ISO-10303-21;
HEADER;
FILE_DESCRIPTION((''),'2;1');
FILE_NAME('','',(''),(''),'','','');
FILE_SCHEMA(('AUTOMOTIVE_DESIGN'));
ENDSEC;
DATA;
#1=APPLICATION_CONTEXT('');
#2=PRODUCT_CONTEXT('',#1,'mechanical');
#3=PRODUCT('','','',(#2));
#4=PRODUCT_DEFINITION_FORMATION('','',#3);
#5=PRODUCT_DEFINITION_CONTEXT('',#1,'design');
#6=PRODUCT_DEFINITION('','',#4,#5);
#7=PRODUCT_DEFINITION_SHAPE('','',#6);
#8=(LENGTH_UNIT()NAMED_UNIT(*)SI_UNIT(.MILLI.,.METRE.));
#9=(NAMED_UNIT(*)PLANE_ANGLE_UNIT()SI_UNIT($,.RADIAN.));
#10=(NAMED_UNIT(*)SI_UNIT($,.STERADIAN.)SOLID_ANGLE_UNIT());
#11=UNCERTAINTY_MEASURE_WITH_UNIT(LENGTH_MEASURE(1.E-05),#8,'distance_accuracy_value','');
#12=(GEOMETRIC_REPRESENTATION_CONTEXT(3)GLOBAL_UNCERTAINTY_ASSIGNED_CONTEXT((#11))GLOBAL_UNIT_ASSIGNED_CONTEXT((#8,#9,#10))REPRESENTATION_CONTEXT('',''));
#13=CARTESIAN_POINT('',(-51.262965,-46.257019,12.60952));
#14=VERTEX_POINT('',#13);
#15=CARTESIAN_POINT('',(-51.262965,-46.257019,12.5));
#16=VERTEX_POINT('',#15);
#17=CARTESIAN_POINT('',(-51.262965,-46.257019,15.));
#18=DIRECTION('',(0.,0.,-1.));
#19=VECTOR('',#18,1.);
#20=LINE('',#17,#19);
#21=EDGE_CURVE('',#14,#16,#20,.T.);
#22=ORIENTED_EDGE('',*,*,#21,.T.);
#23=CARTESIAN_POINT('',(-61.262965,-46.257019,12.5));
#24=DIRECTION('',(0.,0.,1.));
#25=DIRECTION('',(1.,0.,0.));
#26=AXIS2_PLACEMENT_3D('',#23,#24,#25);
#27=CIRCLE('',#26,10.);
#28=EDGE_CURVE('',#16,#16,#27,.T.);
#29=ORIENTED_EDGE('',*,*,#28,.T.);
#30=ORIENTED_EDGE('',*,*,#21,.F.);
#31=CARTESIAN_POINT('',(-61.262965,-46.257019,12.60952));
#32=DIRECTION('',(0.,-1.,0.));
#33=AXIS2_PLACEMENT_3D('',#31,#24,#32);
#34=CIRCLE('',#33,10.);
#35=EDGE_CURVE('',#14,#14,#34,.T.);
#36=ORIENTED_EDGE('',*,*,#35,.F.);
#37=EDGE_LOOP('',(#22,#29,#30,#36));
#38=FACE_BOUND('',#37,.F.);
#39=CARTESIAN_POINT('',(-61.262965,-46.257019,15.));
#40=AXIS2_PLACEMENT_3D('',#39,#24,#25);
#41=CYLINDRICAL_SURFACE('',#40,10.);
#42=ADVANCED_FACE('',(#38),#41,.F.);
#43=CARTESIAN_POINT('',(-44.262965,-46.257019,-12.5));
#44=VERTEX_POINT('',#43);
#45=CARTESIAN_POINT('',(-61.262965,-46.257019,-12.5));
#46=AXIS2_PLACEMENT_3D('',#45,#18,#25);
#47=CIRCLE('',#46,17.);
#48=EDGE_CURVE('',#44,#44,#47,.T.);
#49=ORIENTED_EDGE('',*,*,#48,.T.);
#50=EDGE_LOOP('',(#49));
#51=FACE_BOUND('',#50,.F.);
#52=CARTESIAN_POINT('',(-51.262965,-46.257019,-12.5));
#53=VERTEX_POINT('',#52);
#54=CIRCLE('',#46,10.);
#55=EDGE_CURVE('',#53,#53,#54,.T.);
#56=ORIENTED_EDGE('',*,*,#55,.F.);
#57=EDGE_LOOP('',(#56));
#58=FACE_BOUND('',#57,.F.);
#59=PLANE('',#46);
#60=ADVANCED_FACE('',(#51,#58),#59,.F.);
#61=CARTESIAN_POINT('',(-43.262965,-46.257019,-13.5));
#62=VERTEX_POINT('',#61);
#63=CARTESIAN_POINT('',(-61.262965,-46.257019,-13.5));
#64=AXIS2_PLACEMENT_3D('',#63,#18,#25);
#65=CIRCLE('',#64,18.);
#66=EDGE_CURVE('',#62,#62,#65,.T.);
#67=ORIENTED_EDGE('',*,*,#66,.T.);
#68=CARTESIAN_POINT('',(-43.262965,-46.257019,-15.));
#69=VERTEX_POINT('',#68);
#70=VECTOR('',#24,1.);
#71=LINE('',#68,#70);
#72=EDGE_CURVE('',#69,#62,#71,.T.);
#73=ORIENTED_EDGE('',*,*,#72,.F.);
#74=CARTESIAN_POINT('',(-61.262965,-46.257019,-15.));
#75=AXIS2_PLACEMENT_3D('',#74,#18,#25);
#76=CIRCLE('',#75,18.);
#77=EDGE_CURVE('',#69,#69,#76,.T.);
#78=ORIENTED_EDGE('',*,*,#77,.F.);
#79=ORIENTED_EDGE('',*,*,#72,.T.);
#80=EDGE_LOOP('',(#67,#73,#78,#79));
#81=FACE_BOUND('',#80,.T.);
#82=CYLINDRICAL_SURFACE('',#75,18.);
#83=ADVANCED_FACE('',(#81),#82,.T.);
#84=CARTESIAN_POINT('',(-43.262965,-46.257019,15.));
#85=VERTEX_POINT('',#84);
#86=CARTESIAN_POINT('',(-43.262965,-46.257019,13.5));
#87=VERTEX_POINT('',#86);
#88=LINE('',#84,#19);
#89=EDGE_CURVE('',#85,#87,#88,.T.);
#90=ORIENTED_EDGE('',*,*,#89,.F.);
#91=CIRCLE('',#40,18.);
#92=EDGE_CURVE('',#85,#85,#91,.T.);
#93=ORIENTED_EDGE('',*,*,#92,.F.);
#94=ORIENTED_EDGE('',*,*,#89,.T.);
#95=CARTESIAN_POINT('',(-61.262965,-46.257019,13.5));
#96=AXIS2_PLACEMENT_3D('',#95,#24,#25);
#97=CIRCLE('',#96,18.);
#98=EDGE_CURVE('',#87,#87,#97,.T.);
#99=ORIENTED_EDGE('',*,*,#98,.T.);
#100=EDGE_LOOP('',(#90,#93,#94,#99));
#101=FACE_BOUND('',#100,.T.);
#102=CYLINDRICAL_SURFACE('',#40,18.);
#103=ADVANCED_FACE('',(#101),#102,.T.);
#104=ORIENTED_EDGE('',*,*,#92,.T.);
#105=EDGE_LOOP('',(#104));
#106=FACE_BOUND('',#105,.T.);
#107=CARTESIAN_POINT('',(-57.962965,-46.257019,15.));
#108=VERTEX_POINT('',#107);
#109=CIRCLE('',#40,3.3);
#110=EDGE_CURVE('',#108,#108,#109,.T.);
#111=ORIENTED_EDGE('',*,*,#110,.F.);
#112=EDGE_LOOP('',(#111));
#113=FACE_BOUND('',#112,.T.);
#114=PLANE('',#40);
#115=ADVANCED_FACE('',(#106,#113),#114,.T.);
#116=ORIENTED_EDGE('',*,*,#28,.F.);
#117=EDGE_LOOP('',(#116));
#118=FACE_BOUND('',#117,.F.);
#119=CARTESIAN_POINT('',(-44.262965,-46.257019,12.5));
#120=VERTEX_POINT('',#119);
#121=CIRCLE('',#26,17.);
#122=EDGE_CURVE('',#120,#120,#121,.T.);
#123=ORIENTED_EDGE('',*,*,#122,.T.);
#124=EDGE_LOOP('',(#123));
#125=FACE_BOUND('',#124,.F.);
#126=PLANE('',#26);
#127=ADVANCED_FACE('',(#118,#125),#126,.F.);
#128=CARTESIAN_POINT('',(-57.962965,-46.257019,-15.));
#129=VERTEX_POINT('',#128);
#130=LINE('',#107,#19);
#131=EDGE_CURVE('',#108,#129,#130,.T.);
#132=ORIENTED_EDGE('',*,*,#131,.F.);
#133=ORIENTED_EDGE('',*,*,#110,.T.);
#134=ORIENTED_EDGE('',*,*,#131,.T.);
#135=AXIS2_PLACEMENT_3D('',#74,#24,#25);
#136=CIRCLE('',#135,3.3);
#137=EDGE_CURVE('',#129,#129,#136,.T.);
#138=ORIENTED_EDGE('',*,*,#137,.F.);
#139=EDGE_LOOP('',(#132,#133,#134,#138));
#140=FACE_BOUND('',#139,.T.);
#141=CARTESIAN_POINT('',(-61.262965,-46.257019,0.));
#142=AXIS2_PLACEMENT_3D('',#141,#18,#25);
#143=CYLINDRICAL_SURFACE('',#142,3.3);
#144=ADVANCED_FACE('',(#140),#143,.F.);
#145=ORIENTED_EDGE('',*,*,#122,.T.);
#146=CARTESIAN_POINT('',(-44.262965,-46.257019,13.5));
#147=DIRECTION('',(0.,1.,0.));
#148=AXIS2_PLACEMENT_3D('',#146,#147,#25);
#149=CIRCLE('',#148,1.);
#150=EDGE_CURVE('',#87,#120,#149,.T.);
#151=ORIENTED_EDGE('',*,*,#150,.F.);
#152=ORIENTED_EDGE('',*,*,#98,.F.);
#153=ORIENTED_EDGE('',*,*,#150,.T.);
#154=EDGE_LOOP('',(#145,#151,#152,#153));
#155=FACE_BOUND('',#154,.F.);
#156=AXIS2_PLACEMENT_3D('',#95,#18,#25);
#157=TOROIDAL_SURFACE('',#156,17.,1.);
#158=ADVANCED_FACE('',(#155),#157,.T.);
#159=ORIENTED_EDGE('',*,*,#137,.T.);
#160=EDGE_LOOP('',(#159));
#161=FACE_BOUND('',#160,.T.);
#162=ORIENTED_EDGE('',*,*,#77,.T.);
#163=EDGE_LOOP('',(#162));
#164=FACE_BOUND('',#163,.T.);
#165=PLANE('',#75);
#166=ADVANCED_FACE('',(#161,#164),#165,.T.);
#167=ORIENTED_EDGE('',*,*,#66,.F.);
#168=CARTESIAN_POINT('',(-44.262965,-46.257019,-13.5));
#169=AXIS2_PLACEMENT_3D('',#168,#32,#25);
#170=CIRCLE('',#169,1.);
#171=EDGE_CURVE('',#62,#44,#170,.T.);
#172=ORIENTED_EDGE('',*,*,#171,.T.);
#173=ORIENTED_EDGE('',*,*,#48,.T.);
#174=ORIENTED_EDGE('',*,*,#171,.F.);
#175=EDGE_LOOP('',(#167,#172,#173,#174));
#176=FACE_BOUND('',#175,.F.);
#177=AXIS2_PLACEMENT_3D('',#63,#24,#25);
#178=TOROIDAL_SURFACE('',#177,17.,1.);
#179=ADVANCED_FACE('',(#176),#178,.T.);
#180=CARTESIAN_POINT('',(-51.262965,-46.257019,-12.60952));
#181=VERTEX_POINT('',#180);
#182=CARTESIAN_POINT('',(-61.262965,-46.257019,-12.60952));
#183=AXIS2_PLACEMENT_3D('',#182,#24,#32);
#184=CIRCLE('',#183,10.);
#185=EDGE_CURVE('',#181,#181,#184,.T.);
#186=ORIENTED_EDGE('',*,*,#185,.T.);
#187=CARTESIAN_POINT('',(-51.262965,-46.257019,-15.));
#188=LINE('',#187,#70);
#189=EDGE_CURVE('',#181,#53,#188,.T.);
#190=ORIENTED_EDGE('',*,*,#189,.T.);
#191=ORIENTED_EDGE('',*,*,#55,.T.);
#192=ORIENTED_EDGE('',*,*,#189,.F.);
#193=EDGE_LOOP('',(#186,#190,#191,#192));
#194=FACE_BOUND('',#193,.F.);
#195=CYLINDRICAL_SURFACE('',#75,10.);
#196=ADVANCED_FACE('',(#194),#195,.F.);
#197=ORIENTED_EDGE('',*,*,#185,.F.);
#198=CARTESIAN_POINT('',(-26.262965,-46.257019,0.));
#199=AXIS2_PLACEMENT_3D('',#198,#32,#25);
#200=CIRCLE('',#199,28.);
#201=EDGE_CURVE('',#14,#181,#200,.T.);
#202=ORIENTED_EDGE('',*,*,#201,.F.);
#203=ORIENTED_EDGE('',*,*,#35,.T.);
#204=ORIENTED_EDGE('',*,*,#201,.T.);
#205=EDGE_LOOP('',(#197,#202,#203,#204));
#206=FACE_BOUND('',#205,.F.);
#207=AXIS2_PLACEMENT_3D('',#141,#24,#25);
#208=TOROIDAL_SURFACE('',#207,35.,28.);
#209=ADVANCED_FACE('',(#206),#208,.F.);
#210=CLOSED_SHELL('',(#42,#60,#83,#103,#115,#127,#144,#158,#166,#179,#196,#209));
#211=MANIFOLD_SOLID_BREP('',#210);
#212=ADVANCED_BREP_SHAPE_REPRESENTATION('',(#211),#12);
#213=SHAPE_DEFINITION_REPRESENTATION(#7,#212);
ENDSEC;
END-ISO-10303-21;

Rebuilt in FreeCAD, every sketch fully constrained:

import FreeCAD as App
import Part
import Sketcher
Q = App.Units.Quantity


def edges_at(feature, points):
    """Names of the edges that pass closest to the given points."""
    edges = feature.Shape.Edges
    near = lambda p: min(range(len(edges)), key=lambda i: edges[i].distToShape(Part.Vertex(*p))[0])
    return sorted({f"Edge{near(p) + 1}" for p in points})

doc = App.newDocument("Part")
body = doc.addObject("PartDesign::Body", "Body")

sketch1 = body.newObject("Sketcher::SketchObject", "Sketch")
sketch1.AttachmentSupport = (doc.getObject("XY_Plane"), [""])
sketch1.MapMode = "FlatFace"
sketch1.addGeometry([
    Part.Circle(App.Vector(-61.3, -46.3, 0), App.Vector(0, 0, 1), 10),
    Part.Circle(App.Vector(-61.3, -46.3, 0), App.Vector(0, 0, 1), 3.3),
], False)
sketch1.addConstraint([
    Sketcher.Constraint("Coincident", 1, 3, 0, 3),
    Sketcher.Constraint("Diameter", 0, Q("20 mm")),
    Sketcher.Constraint("Diameter", 1, Q("6.6 mm")),
    Sketcher.Constraint("DistanceY", 0, 3, -1, 1, Q("46.257019 mm")),
    Sketcher.Constraint("DistanceX", 0, 3, -1, 1, Q("61.262965 mm")),
])
pad1 = body.newObject("PartDesign::Pad", "Pad")
pad1.Profile = sketch1
pad1.Length = 15

sketch2 = body.newObject("Sketcher::SketchObject", "Sketch001")
sketch2.AttachmentSupport = (doc.getObject("XY_Plane"), [""])
sketch2.MapMode = "FlatFace"
sketch2.addGeometry([
    Part.Circle(App.Vector(-61.3, -46.3, 0), App.Vector(0, 0, 1), 10),
    Part.Circle(App.Vector(-61.3, -46.3, 0), App.Vector(0, 0, 1), 3.3),
], False)
sketch2.addConstraint([
    Sketcher.Constraint("Coincident", 1, 3, 0, 3),
    Sketcher.Constraint("Diameter", 0, Q("20 mm")),
    Sketcher.Constraint("Diameter", 1, Q("6.6 mm")),
    Sketcher.Constraint("DistanceY", 0, 3, -1, 1, Q("46.257019 mm")),
    Sketcher.Constraint("DistanceX", 0, 3, -1, 1, Q("61.262965 mm")),
])
pad2 = body.newObject("PartDesign::Pad", "Pad001")
pad2.Profile = sketch2
pad2.Length = 15
pad2.Reversed = True

sketch3 = body.newObject("Sketcher::SketchObject", "Sketch002")
sketch3.AttachmentSupport = (doc.getObject("XZ_Plane"), [""])
sketch3.MapMode = "FlatFace"
sketch3.AttachmentOffset = App.Placement(App.Vector(0, 0, 46.257019), App.Rotation())
sketch3.addGeometry(Part.Circle(App.Vector(-26, 0, 0), App.Vector(0, 0, 1), 28), False)
sketch3.addConstraint([
    Sketcher.Constraint("PointOnObject", 0, 3, -1),
    Sketcher.Constraint("Diameter", 0, Q("56 mm")),
    Sketcher.Constraint("DistanceX", 0, 3, -1, 1, Q("26.262965 mm")),
])

sketch4 = body.newObject("Sketcher::SketchObject", "Sketch003")
sketch4.AttachmentSupport = (doc.getObject("XY_Plane"), [""])
sketch4.MapMode = "FlatFace"
sketch4.addGeometry(Part.Circle(App.Vector(-61, -46, 0), App.Vector(0, 0, 1), 10), False)
sketch4.addConstraint([
    Sketcher.Constraint("Diameter", 0, Q("20 mm")),
    Sketcher.Constraint("DistanceY", 0, 3, -1, 1, Q("46.257019 mm")),
    Sketcher.Constraint("DistanceX", 0, 3, -1, 1, Q("61.262965 mm")),
])
doc.recompute()

subtractivepipe = body.newObject("PartDesign::SubtractivePipe", "SubtractivePipe")
subtractivepipe.Profile = sketch3
subtractivepipe.Spine = (sketch4, ["Edge1"])

sketch5 = body.newObject("Sketcher::SketchObject", "Sketch004")
sketch5.AttachmentSupport = (doc.getObject("XY_Plane"), [""])
sketch5.MapMode = "FlatFace"
sketch5.AttachmentOffset = App.Placement(App.Vector(0, 0, 15), App.Rotation())
sketch5.addGeometry([
    Part.Circle(App.Vector(-61, -46, 0), App.Vector(0, 0, 1), 18),
    Part.Circle(App.Vector(-61, -46, 0), App.Vector(0, 0, 1), 10),
], False)
sketch5.addConstraint([
    Sketcher.Constraint("Coincident", 1, 3, 0, 3),
    Sketcher.Constraint("Diameter", 0, Q("36 mm")),
    Sketcher.Constraint("Diameter", 1, Q("20 mm")),
    Sketcher.Constraint("DistanceY", 0, 3, -1, 1, Q("46.257019 mm")),
    Sketcher.Constraint("DistanceX", 0, 3, -1, 1, Q("61.262965 mm")),
])
pad3 = body.newObject("PartDesign::Pad", "Pad002")
pad3.Profile = sketch5
pad3.Length = 2.5
pad3.Reversed = True
doc.recompute()

fillet = body.newObject("PartDesign::Fillet", "Fillet")
fillet.Base = (pad3, edges_at(pad3, [(-79.263, -46.257, 12.5)]))
fillet.Radius = 1

sketch6 = body.newObject("Sketcher::SketchObject", "Sketch005")
sketch6.AttachmentSupport = (doc.getObject("XY_Plane"), [""])
sketch6.MapMode = "FlatFace"
sketch6.AttachmentOffset = App.Placement(App.Vector(0, 0, -15), App.Rotation())
sketch6.addGeometry([
    Part.Circle(App.Vector(-61, -46, 0), App.Vector(0, 0, 1), 18),
    Part.Circle(App.Vector(-61, -46, 0), App.Vector(0, 0, 1), 10),
], False)
sketch6.addConstraint([
    Sketcher.Constraint("Coincident", 1, 3, 0, 3),
    Sketcher.Constraint("Diameter", 0, Q("36 mm")),
    Sketcher.Constraint("Diameter", 1, Q("20 mm")),
    Sketcher.Constraint("DistanceY", 0, 3, -1, 1, Q("46.257019 mm")),
    Sketcher.Constraint("DistanceX", 0, 3, -1, 1, Q("61.262965 mm")),
])
pad4 = body.newObject("PartDesign::Pad", "Pad003")
pad4.Profile = sketch6
pad4.Length = 2.5
doc.recompute()

fillet2 = body.newObject("PartDesign::Fillet", "Fillet001")
fillet2.Base = (pad4, edges_at(pad4, [(-79.263, -46.257, -12.5)]))
fillet2.Radius = 1

doc.recompute()
